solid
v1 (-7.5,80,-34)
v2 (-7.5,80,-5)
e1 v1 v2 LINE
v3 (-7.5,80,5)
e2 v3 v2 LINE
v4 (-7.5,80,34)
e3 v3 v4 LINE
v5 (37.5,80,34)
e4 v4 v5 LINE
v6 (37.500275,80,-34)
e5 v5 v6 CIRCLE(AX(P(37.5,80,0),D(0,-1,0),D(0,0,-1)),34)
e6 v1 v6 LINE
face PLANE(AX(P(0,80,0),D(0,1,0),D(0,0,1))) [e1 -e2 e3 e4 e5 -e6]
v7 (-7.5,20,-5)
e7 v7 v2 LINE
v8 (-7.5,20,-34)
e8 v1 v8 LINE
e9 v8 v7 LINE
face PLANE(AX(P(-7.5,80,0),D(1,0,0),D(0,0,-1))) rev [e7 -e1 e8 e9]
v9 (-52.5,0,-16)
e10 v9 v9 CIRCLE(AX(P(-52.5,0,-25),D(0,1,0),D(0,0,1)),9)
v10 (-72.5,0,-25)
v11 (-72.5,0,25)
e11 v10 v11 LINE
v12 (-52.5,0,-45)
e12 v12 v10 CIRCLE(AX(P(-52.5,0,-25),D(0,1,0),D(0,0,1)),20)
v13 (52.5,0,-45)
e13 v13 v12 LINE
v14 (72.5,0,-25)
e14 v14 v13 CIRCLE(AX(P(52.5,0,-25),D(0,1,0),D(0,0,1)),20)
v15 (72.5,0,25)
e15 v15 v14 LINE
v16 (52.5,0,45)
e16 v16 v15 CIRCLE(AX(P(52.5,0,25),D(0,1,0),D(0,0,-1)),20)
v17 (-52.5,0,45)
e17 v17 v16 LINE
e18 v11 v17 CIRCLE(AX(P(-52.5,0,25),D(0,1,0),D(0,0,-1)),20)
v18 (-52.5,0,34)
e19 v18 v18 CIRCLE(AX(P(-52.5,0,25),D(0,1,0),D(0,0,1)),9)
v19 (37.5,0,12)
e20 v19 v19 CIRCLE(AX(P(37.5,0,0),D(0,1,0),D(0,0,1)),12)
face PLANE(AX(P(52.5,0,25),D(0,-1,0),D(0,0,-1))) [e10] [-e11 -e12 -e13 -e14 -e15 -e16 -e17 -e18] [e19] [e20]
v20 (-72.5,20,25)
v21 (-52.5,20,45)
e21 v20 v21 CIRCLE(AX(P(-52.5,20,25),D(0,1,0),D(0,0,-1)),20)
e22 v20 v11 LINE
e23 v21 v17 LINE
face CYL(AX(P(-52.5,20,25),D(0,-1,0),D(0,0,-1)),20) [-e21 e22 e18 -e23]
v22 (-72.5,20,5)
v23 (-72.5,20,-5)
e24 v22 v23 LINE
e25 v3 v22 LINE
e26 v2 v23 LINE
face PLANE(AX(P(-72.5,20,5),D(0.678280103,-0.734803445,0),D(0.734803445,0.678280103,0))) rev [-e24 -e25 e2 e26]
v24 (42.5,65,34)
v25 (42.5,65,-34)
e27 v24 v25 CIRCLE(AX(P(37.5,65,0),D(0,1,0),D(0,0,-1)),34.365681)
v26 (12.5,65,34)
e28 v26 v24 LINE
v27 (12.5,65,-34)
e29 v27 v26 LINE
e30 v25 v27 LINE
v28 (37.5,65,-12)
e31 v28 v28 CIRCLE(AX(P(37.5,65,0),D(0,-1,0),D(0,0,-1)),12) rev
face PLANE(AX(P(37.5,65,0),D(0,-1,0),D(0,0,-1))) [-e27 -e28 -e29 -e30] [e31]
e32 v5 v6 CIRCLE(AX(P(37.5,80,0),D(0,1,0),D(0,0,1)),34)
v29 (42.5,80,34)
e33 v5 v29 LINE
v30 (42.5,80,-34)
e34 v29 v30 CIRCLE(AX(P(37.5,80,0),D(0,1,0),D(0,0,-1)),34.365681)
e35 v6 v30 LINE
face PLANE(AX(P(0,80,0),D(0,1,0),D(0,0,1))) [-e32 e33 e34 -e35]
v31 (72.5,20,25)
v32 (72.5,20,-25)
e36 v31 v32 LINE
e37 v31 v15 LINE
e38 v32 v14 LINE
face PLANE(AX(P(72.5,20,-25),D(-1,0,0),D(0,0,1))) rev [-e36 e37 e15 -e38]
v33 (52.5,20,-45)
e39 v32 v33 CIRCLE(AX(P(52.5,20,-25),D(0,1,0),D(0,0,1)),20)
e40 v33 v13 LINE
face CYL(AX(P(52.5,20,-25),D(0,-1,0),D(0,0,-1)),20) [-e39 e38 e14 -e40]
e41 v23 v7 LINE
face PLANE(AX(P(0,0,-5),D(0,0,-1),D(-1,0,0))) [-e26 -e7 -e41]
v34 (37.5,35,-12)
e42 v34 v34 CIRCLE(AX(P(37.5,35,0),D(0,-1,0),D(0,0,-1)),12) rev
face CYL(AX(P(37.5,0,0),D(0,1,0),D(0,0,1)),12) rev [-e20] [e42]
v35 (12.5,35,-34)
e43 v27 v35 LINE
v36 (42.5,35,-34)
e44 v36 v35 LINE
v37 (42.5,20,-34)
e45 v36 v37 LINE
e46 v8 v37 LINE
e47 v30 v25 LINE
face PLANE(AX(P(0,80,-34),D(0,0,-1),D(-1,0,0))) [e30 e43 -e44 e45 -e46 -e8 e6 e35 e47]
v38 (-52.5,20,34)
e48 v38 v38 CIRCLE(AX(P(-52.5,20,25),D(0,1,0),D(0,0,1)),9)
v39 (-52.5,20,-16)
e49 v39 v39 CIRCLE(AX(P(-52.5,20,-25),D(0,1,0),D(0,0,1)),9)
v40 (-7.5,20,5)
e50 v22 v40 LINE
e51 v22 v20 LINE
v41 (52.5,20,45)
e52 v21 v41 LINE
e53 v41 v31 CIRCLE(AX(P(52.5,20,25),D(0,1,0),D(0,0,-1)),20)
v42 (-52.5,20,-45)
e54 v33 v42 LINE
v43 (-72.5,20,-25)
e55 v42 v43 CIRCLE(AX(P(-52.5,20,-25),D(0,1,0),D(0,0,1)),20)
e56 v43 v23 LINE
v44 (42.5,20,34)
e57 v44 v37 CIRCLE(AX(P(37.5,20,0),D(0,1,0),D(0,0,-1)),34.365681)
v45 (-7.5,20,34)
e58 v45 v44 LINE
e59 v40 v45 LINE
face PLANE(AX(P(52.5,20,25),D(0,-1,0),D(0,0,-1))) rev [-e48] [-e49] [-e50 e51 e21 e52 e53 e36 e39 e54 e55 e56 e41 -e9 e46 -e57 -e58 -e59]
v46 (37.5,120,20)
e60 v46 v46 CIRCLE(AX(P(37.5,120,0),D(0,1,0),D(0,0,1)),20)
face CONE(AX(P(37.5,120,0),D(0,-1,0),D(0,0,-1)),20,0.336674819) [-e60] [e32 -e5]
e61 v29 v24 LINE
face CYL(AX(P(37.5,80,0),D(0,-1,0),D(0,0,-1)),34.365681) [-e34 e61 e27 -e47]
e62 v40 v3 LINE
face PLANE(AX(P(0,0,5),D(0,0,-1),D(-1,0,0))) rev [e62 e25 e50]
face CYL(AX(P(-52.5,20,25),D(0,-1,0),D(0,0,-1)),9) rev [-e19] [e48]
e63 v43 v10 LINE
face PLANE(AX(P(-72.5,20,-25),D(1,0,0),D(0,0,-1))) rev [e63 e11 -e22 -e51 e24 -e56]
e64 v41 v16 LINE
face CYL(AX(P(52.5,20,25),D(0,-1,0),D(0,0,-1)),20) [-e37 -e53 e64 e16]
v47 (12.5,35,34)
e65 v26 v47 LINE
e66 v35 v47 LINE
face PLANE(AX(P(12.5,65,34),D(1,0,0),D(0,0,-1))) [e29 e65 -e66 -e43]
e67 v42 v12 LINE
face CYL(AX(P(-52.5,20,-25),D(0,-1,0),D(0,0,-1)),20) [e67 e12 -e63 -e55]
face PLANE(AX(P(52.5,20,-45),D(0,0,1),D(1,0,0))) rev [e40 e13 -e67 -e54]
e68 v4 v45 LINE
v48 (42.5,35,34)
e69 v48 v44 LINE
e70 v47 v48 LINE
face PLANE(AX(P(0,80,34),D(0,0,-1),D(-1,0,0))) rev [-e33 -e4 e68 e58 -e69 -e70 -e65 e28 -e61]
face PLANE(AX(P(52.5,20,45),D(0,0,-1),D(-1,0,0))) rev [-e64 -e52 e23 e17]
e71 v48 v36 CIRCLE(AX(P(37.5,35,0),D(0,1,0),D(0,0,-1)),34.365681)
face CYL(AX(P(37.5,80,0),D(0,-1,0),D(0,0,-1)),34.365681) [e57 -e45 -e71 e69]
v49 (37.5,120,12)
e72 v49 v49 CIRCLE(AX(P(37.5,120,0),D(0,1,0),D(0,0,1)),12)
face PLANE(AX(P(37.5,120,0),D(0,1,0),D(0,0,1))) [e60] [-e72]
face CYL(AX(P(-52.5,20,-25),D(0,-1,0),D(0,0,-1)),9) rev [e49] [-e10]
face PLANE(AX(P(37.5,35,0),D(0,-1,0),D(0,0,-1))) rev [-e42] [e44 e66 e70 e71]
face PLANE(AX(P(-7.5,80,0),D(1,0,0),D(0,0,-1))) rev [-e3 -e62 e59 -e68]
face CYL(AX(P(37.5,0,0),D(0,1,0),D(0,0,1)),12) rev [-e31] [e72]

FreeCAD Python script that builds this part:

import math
import FreeCAD as App
import Part
import Sketcher

V = App.Vector
Q = App.Units.Quantity

doc = App.newDocument("Part")
body = doc.addObject("PartDesign::Body", "Body")

# Sketch on XZ plane
sketch1 = body.newObject("Sketcher::SketchObject", "Sketch")
sketch1.AttachmentSupport = (doc.getObject("XZ_Plane"), [""])
sketch1.MapMode = "FlatFace"
sketch1.addGeometry([
    Part.LineSegment(V(52, -45, 0), V(-52, -45, 0)),  # 0
    Part.ArcOfCircle(Part.Circle(V(-53, -25, 0), V(0, 0, 1), 20), math.radians(180), math.radians(270)),  # 1
    Part.LineSegment(V(-72, -25, 0), V(-72, 25, 0)),  # 2
    Part.ArcOfCircle(Part.Circle(V(-53, 25, 0), V(0, 0, 1), 20), math.radians(90), math.radians(180)),  # 3
    Part.LineSegment(V(-52, 45, 0), V(52, 45, 0)),  # 4
    Part.ArcOfCircle(Part.Circle(V(53, 25, 0), V(0, 0, 1), 20), math.radians(0), math.radians(90)),  # 5
    Part.LineSegment(V(72, 25, 0), V(72, -25, 0)),  # 6
    Part.ArcOfCircle(Part.Circle(V(53, -25, 0), V(0, 0, 1), 20), math.radians(-90), math.radians(0)),  # 7
    Part.Circle(V(-52, 25, 0), V(0, 0, 1), 9),  # 8
    Part.Circle(V(-52, -25, 0), V(0, 0, 1), 9),  # 9
], False)
sketch1.addConstraint([
    Sketcher.Constraint("Tangent", 0, 2, 1, 2),
    Sketcher.Constraint("Tangent", 1, 1, 2, 1),
    Sketcher.Constraint("Tangent", 2, 2, 3, 2),
    Sketcher.Constraint("Tangent", 3, 1, 4, 1),
    Sketcher.Constraint("Tangent", 4, 2, 5, 2),
    Sketcher.Constraint("Tangent", 5, 1, 6, 1),
    Sketcher.Constraint("Tangent", 6, 2, 7, 2),
    Sketcher.Constraint("Tangent", 7, 1, 0, 1),
    Sketcher.Constraint("Horizontal", 0),
    Sketcher.Constraint("Vertical", 2),
    Sketcher.Constraint("Horizontal", 4),
    Sketcher.Constraint("Vertical", 6),
    Sketcher.Constraint("Coincident", 8, 3, 3, 3),
    Sketcher.Constraint("Coincident", 9, 3, 1, 3),
    Sketcher.Constraint("Equal", 1, 3),
    Sketcher.Constraint("Equal", 3, 5),
    Sketcher.Constraint("Equal", 5, 7),
    Sketcher.Constraint("Equal", 8, 9),
    Sketcher.Constraint("Symmetric", 1, 3, 5, 3, -1, 1),
    Sketcher.Constraint("Diameter", 8, Q("18 mm")),
    Sketcher.Constraint("Radius", 1, Q("20 mm")),
    Sketcher.Constraint("DistanceX", 0, 2, 0, 1, Q("105 mm")),
    Sketcher.Constraint("DistanceY", 2, 1, 2, 2, Q("50 mm")),
])
pad1 = body.newObject("PartDesign::Pad", "Pad")
pad1.Profile = sketch1
pad1.Length = 20
pad1.Reversed = True

# Sketch on XZ plane
sketch2 = body.newObject("Sketcher::SketchObject", "Sketch001")
sketch2.AttachmentSupport = (doc.getObject("XZ_Plane"), [""])
sketch2.MapMode = "FlatFace"
sketch2.AttachmentOffset = App.Placement(V(0, 0, -20), App.Rotation())
sketch2.addGeometry([
    Part.LineSegment(V(-8, -34, 0), V(-8, 34, 0)),
    Part.LineSegment(V(-8, 34, 0), V(12, 34, 0)),
    Part.LineSegment(V(12, 34, 0), V(12, -34, 0)),
    Part.LineSegment(V(12, -34, 0), V(-8, -34, 0)),
], False)
sketch2.addConstraint([
    Sketcher.Constraint("Coincident", 0, 2, 1, 1),
    Sketcher.Constraint("Coincident", 1, 2, 2, 1),
    Sketcher.Constraint("Coincident", 2, 2, 3, 1),
    Sketcher.Constraint("Coincident", 3, 2, 0, 1),
    Sketcher.Constraint("Vertical", 0),
    Sketcher.Constraint("Horizontal", 1),
    Sketcher.Constraint("Vertical", 2),
    Sketcher.Constraint("Horizontal", 3),
    Sketcher.Constraint("DistanceX", 1, 1, 1, 2, Q("20 mm")),
    Sketcher.Constraint("DistanceY", 0, 1, 0, 2, Q("68 mm")),
    Sketcher.Constraint("DistanceY", -1, 1, 0, 2, Q("34 mm")),
    Sketcher.Constraint("DistanceX", 0, 2, -1, 1, Q("7.5 mm")),
])
pad2 = body.newObject("PartDesign::Pad", "Pad001")
pad2.Profile = sketch2
pad2.Length = 60
pad2.Reversed = True

# Sketch on XZ plane
sketch3 = body.newObject("Sketcher::SketchObject", "Sketch002")
sketch3.AttachmentSupport = (doc.getObject("XZ_Plane"), [""])
sketch3.MapMode = "FlatFace"
sketch3.AttachmentOffset = App.Placement(V(0, 0, -20), App.Rotation())
sketch3.addGeometry([
    Part.LineSegment(V(12, 34, 0), V(42, 34, 0)),
    Part.ArcOfCircle(Part.Circle(V(38, 0, 0), V(0, 0, 1), 34), math.radians(-82), math.radians(82)),
    Part.LineSegment(V(42, -34, 0), V(12, -34, 0)),
    Part.LineSegment(V(12, -34, 0), V(12, 34, 0)),
], False)
sketch3.addConstraint([
    Sketcher.Constraint("Coincident", 0, 2, 1, 2),
    Sketcher.Constraint("Coincident", 1, 1, 2, 1),
    Sketcher.Constraint("Coincident", 2, 2, 3, 1),
    Sketcher.Constraint("Coincident", 3, 2, 0, 1),
    Sketcher.Constraint("Horizontal", 0),
    Sketcher.Constraint("Horizontal", 2),
    Sketcher.Constraint("Vertical", 3),
    Sketcher.Constraint("Symmetric", 0, 2, 1, 1, -1),
    Sketcher.Constraint("DistanceX", 0, 1, 0, 2, Q("30 mm")),
    Sketcher.Constraint("DistanceY", 3, 1, 3, 2, Q("68 mm")),
    Sketcher.Constraint("DistanceX", 1, 3, 0, 2, Q("5 mm")),
    Sketcher.Constraint("DistanceX", -1, 1, 1, 3, Q("37.5 mm")),
])
pad3 = body.newObject("PartDesign::Pad", "Pad002")
pad3.Profile = sketch3
pad3.Length = 60
pad3.Reversed = True

# Sketch on XZ plane
sketch4 = body.newObject("Sketcher::SketchObject", "Sketch003")
sketch4.AttachmentSupport = (doc.getObject("XZ_Plane"), [""])
sketch4.MapMode = "FlatFace"
sketch4.AttachmentOffset = App.Placement(V(0, 0, -80), App.Rotation())
sketch4.addGeometry(Part.Circle(V(38, 0, 0), V(0, 0, 1), 34), False)
sketch4.addConstraint([
    Sketcher.Constraint("PointOnObject", 0, 3, -1),
    Sketcher.Constraint("Diameter", 0, Q("68 mm")),
    Sketcher.Constraint("DistanceX", -1, 1, 0, 3, Q("37.5 mm")),
])

# Sketch on XZ plane
sketch5 = body.newObject("Sketcher::SketchObject", "Sketch004")
sketch5.AttachmentSupport = (doc.getObject("XZ_Plane"), [""])
sketch5.MapMode = "FlatFace"
sketch5.AttachmentOffset = App.Placement(V(0, 0, -120), App.Rotation())
sketch5.addGeometry(Part.Circle(V(38, 0, 0), V(0, 0, 1), 20), False)
sketch5.addConstraint([
    Sketcher.Constraint("PointOnObject", 0, 3, -1),
    Sketcher.Constraint("Diameter", 0, Q("40 mm")),
    Sketcher.Constraint("DistanceX", -1, 1, 0, 3, Q("37.5 mm")),
])

additiveloft = body.newObject("PartDesign::AdditiveLoft", "AdditiveLoft")
additiveloft.Profile = sketch4
additiveloft.Sections = [sketch5]

# Sketch on XZ plane
sketch6 = body.newObject("Sketcher::SketchObject", "Sketch005")
sketch6.AttachmentSupport = (doc.getObject("XZ_Plane"), [""])
sketch6.MapMode = "FlatFace"
sketch6.AttachmentOffset = App.Placement(V(0, 0, -120), App.Rotation())
sketch6.addGeometry(Part.Circle(V(38, 0, 0), V(0, 0, 1), 12), False)
sketch6.addConstraint([
    Sketcher.Constraint("PointOnObject", 0, 3, -1),
    Sketcher.Constraint("Diameter", 0, Q("24 mm")),
    Sketcher.Constraint("DistanceX", -1, 1, 0, 3, Q("37.5 mm")),
])
pocket1 = body.newObject("PartDesign::Pocket", "Pocket")
pocket1.Profile = sketch6
pocket1.Type = "ThroughAll"
pocket1.Reversed = True

# Sketch on XZ plane
sketch7 = body.newObject("Sketcher::SketchObject", "Sketch006")
sketch7.AttachmentSupport = (doc.getObject("XZ_Plane"), [""])
sketch7.MapMode = "FlatFace"
sketch7.AttachmentOffset = App.Placement(V(0, 0, -35), App.Rotation())
sketch7.addGeometry([
    Part.LineSegment(V(12, 34, 0), V(42, 34, 0)),
    Part.ArcOfCircle(Part.Circle(V(38, 0, 0), V(0, 0, 1), 34), math.radians(-82), math.radians(82)),
    Part.LineSegment(V(42, -34, 0), V(12, -34, 0)),
    Part.LineSegment(V(12, -34, 0), V(12, 34, 0)),
], False)
sketch7.addConstraint([
    Sketcher.Constraint("Coincident", 0, 2, 1, 2),
    Sketcher.Constraint("Coincident", 1, 1, 2, 1),
    Sketcher.Constraint("Coincident", 2, 2, 3, 1),
    Sketcher.Constraint("Coincident", 3, 2, 0, 1),
    Sketcher.Constraint("Horizontal", 0),
    Sketcher.Constraint("Horizontal", 2),
    Sketcher.Constraint("Vertical", 3),
    Sketcher.Constraint("Symmetric", 0, 2, 1, 1, -1),
    Sketcher.Constraint("DistanceX", 0, 1, 0, 2, Q("30 mm")),
    Sketcher.Constraint("DistanceY", 3, 1, 3, 2, Q("68 mm")),
    Sketcher.Constraint("DistanceX", 1, 3, 0, 2, Q("5 mm")),
    Sketcher.Constraint("DistanceX", -1, 1, 1, 3, Q("37.5 mm")),
])
pocket2 = body.newObject("PartDesign::Pocket", "Pocket001")
pocket2.Profile = sketch7
pocket2.Length = 30

# Sketch on XY plane
sketch8 = body.newObject("Sketcher::SketchObject", "Sketch007")
sketch8.AttachmentSupport = (doc.getObject("XY_Plane"), [""])
sketch8.MapMode = "FlatFace"
sketch8.addGeometry([
    Part.LineSegment(V(-8, 20, 0), V(-8, 80, 0)),
    Part.LineSegment(V(-8, 80, 0), V(-72, 20, 0)),
    Part.LineSegment(V(-72, 20, 0), V(-8, 20, 0)),
], False)
sketch8.addConstraint([
    Sketcher.Constraint("Coincident", 0, 2, 1, 1),
    Sketcher.Constraint("Coincident", 1, 2, 2, 1),
    Sketcher.Constraint("Coincident", 2, 2, 0, 1),
    Sketcher.Constraint("Vertical", 0),
    Sketcher.Constraint("Horizontal", 2),
    Sketcher.Constraint("DistanceX", 2, 1, 2, 2, Q("65 mm")),
    Sketcher.Constraint("DistanceY", 0, 1, 0, 2, Q("60 mm")),
    Sketcher.Constraint("DistanceY", -1, 1, 0, 2, Q("80 mm")),
    Sketcher.Constraint("DistanceX", 0, 2, -1, 1, Q("7.5 mm")),
])
pad4 = body.newObject("PartDesign::Pad", "Pad003")
pad4.Profile = sketch8
pad4.Length = 10
pad4.Midplane = True

doc.recompute()
